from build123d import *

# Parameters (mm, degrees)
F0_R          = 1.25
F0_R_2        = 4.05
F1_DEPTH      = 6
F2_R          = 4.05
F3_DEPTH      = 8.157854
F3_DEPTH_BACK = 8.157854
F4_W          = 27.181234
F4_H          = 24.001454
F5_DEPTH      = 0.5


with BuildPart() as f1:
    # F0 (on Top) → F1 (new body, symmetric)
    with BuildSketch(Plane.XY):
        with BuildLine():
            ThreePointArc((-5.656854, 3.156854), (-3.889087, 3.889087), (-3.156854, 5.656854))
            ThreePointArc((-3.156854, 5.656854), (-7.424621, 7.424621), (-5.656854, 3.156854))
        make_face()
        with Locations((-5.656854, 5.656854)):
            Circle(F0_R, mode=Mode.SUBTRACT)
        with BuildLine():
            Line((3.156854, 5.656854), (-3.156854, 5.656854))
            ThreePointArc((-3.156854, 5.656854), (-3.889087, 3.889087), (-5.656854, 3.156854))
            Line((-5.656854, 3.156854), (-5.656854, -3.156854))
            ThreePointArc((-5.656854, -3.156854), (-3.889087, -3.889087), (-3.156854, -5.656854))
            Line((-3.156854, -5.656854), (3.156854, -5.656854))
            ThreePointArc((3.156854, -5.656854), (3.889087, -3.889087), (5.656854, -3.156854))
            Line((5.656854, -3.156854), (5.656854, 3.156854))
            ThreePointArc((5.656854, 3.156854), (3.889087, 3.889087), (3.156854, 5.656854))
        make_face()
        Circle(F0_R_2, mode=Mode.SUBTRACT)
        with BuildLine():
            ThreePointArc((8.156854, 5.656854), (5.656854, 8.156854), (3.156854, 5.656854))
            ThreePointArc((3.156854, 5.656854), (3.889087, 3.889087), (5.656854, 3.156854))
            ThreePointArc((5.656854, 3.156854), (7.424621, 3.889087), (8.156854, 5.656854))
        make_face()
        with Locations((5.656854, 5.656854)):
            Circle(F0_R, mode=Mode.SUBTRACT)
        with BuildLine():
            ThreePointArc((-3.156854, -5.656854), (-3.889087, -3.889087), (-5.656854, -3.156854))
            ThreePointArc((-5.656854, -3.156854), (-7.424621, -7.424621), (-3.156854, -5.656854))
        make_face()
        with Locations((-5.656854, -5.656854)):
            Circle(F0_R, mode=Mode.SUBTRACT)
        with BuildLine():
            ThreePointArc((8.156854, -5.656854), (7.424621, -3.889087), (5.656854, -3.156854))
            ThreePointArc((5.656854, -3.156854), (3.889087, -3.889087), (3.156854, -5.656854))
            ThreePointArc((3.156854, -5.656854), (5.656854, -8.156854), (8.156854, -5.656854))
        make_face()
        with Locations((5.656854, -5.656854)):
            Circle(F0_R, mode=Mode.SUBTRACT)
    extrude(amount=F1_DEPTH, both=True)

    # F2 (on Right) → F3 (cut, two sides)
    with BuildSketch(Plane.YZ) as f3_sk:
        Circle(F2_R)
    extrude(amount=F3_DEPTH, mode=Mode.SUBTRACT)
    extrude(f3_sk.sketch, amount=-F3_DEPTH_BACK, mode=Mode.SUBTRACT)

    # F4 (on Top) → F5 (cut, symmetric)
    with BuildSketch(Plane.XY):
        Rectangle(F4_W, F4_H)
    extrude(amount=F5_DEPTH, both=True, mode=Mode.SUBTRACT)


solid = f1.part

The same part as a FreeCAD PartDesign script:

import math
import FreeCAD as App
import Part
import Sketcher
from FreeCAD import Vector

doc = App.newDocument("Part")
body = doc.addObject("PartDesign::Body", "Body")
body.AllowCompound = True

# Sketch on XY plane
sketch1 = body.newObject("Sketcher::SketchObject", "Sketch")
sketch1.AttachmentSupport = (doc.getObject("XY_Plane"), [""])
sketch1.MapMode = "FlatFace"
sketch1.addGeometry([
    Part.ArcOfCircle(Part.Circle(Vector(-5.656854, 5.656854, 0), Vector(0, 0, 1), 2.5), math.radians(-0.000001), math.radians(270.000001)),  # 0
    Part.LineSegment(Vector(-5.656854, 3.156854, 0), Vector(-5.656854, -3.156854, 0)),  # 1
    Part.ArcOfCircle(Part.Circle(Vector(-5.656854, -5.656854, 0), Vector(0, 0, 1), 2.5), math.radians(89.999999), math.radians(360.000001)),  # 2
    Part.LineSegment(Vector(-3.156854, -5.656854, 0), Vector(3.156854, -5.656854, 0)),  # 3
    Part.ArcOfCircle(Part.Circle(Vector(5.656854, -5.656854, 0), Vector(0, 0, 1), 2.5), math.radians(180), math.radians(360)),  # 4
    Part.ArcOfCircle(Part.Circle(Vector(5.656854, -5.656854, 0), Vector(0, 0, 1), 2.5), math.radians(-0.000004), math.radians(90.000004)),  # 5
    Part.LineSegment(Vector(5.656854, -3.156854, 0), Vector(5.656854, 3.156854, 0)),  # 6
    Part.ArcOfCircle(Part.Circle(Vector(5.656854, 5.656854, 0), Vector(0, 0, 1), 2.5), math.radians(-90.000004), math.radians(0.000004)),  # 7
    Part.ArcOfCircle(Part.Circle(Vector(5.656854, 5.656854, 0), Vector(0, 0, 1), 2.5), math.radians(0), math.radians(180)),  # 8
    Part.LineSegment(Vector(3.156854, 5.656854, 0), Vector(-3.156854, 5.656854, 0)),  # 9
    Part.Circle(Vector(-5.656854, -5.656854, 0), Vector(0, 0, 1), 1.25),  # 10
    Part.Circle(Vector(5.656854, -5.656854, 0), Vector(0, 0, 1), 1.25),  # 11
    Part.Circle(Vector(0, 0, 0), Vector(0, 0, 1), 4.05),  # 12
    Part.Circle(Vector(-5.656854, 5.656854, 0), Vector(0, 0, 1), 1.25),  # 13
    Part.Circle(Vector(5.656854, 5.656854, 0), Vector(0, 0, 1), 1.25),  # 14
], False)
sketch1.addConstraint([
    Sketcher.Constraint("Coincident", 0, 2, 1, 1),
    Sketcher.Constraint("Coincident", 1, 2, 2, 1),
    Sketcher.Constraint("Coincident", 2, 2, 3, 1),
    Sketcher.Constraint("Coincident", 3, 2, 4, 1),
    Sketcher.Constraint("Tangent", 4, 2, 5, 1),
    Sketcher.Constraint("Coincident", 5, 2, 6, 1),
    Sketcher.Constraint("Coincident", 6, 2, 7, 1),
    Sketcher.Constraint("Tangent", 7, 2, 8, 1),
    Sketcher.Constraint("Coincident", 8, 2, 9, 1),
    Sketcher.Constraint("Coincident", 9, 2, 0, 1),
    Sketcher.Constraint("Vertical", 1),
    Sketcher.Constraint("Horizontal", 3),
    Sketcher.Constraint("Vertical", 6),
    Sketcher.Constraint("Horizontal", 9),
    Sketcher.Constraint("Coincident", 12, 3, -1, 1),
    Sketcher.Constraint("Coincident", 10, 3, 2, 3),
    Sketcher.Constraint("Coincident", 11, 3, 4, 3),
    Sketcher.Constraint("Coincident", 13, 3, 0, 3),
    Sketcher.Constraint("Coincident", 14, 3, 7, 3),
    Sketcher.Constraint("Equal", 0, 2),
    Sketcher.Constraint("Equal", 2, 4),
    Sketcher.Constraint("Equal", 4, 5),
    Sketcher.Constraint("Equal", 5, 7),
    Sketcher.Constraint("Equal", 7, 8),
    Sketcher.Constraint("Equal", 10, 11),
    Sketcher.Constraint("Equal", 11, 13),
    Sketcher.Constraint("Equal", 13, 14),
    Sketcher.Constraint("Symmetric", 0, 3, 4, 3, -1, 1),
    Sketcher.Constraint("Symmetric", 2, 3, 7, 3, -1, 1),
    Sketcher.Constraint("Symmetric", 2, 3, 4, 3, -2),
    Sketcher.Constraint("Horizontal", 11, 3, 2, 2),
    Sketcher.Constraint("Horizontal", 3, 2, 4, 2),
    Sketcher.Constraint("Horizontal", 14, 3, 7, 2),
    Sketcher.Constraint("Horizontal", 7, 2, 8, 2),
    Sketcher.Constraint("Vertical", 13, 3, 0, 2),
    Sketcher.Constraint("Vertical", 14, 3, 5, 2),
    Sketcher.Constraint("Equal", 9, 1),
    Sketcher.Constraint("Diameter", 10, 2.5),
    Sketcher.Constraint("Diameter", 12, 8.1),
    Sketcher.Constraint("Radius", 0, 2.5),
    Sketcher.Constraint("DistanceX", 3, 1, 3, 2, 6.313708),
])
pad1 = body.newObject("PartDesign::Pad", "Pad")
pad1.Profile = sketch1
pad1.Length = 12
pad1.Midplane = True

# Sketch on YZ plane
sketch2 = body.newObject("Sketcher::SketchObject", "Sketch001")
sketch2.AttachmentSupport = (doc.getObject("YZ_Plane"), [""])
sketch2.MapMode = "FlatFace"
sketch2.addGeometry(Part.Circle(Vector(0, 0, 0), Vector(0, 0, 1), 4.05), False)
sketch2.addConstraint([
    Sketcher.Constraint("Coincident", 0, 3, -1, 1),
    Sketcher.Constraint("Diameter", 0, 8.1),
])
pocket1 = body.newObject("PartDesign::Pocket", "Pocket")
pocket1.Profile = sketch2
pocket1.Type = "ThroughAll"
pocket1.Midplane = True

# Sketch on XY plane
sketch3 = body.newObject("Sketcher::SketchObject", "Sketch002")
sketch3.AttachmentSupport = (doc.getObject("XY_Plane"), [""])
sketch3.MapMode = "FlatFace"
sketch3.addGeometry([
    Part.LineSegment(Vector(-13.590617, 12.000727, 0), Vector(-13.590617, -12.000727, 0)),
    Part.LineSegment(Vector(-13.590617, -12.000727, 0), Vector(13.590617, -12.000727, 0)),
    Part.LineSegment(Vector(13.590617, -12.000727, 0), Vector(13.590617, 12.000727, 0)),
    Part.LineSegment(Vector(13.590617, 12.000727, 0), Vector(-13.590617, 12.000727, 0)),
], False)
sketch3.addConstraint([
    Sketcher.Constraint("Coincident", 0, 2, 1, 1),
    Sketcher.Constraint("Coincident", 1, 2, 2, 1),
    Sketcher.Constraint("Coincident", 2, 2, 3, 1),
    Sketcher.Constraint("Coincident", 3, 2, 0, 1),
    Sketcher.Constraint("Vertical", 0),
    Sketcher.Constraint("Horizontal", 1),
    Sketcher.Constraint("Vertical", 2),
    Sketcher.Constraint("Horizontal", 3),
    Sketcher.Constraint("Symmetric", 0, 2, 2, 2, -1, 1),
    Sketcher.Constraint("DistanceX", 1, 1, 1, 2, 27.181234),
    Sketcher.Constraint("DistanceY", 0, 2, 0, 1, 24.001454),
])
pocket2 = body.newObject("PartDesign::Pocket", "Pocket001")
pocket2.Profile = sketch3
pocket2.Length = 1
pocket2.Midplane = True

doc.recompute()
